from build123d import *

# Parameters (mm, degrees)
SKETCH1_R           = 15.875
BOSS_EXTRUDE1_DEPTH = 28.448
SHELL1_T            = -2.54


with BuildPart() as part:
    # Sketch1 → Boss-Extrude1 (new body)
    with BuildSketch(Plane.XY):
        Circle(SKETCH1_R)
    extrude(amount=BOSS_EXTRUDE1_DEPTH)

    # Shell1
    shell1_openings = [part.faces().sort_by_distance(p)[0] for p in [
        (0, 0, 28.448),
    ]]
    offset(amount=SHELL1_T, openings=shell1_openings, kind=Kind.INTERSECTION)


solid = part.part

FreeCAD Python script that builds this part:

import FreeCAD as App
import Part
import Sketcher

V = App.Vector
Q = App.Units.Quantity


def faces_at(feature, points):
    """Names of the faces that lie closest to the given points."""
    faces = feature.Shape.Faces
    near = lambda p: min(range(len(faces)), key=lambda i: faces[i].distToShape(Part.Vertex(*p))[0])
    return sorted({f"Face{near(p) + 1}" for p in points})

doc = App.newDocument("Part")
body = doc.addObject("PartDesign::Body", "Body")

sketch1 = doc.addObject("Sketcher::SketchObject", "Sketch")
body.addObject(sketch1)
sketch1.AttachmentSupport = (doc.XY_Plane, [""])
sketch1.MapMode = "FlatFace"
sketch1.addGeometry(Part.Circle(V(0, 0, 0), V(0, 0, 1), 16), False)
sketch1.addConstraint([
    Sketcher.Constraint("Coincident", 0, 3, -1, 1),
    Sketcher.Constraint("Diameter", 0, Q("1.25 in")),
])
pad1 = doc.addObject("PartDesign::Pad", "Pad")
body.addObject(pad1)
pad1.Profile = sketch1
pad1.Length = Q("1.12 in")
doc.recompute()

thickness = doc.addObject("PartDesign::Thickness", "Thickness")
body.addObject(thickness)
thickness.Base = (pad1, faces_at(pad1, [(0, 0, 28.448)]))
thickness.Value = Q("0.1 in")
thickness.Reversed = True
thickness.Join = "Intersection"

doc.recompute()
